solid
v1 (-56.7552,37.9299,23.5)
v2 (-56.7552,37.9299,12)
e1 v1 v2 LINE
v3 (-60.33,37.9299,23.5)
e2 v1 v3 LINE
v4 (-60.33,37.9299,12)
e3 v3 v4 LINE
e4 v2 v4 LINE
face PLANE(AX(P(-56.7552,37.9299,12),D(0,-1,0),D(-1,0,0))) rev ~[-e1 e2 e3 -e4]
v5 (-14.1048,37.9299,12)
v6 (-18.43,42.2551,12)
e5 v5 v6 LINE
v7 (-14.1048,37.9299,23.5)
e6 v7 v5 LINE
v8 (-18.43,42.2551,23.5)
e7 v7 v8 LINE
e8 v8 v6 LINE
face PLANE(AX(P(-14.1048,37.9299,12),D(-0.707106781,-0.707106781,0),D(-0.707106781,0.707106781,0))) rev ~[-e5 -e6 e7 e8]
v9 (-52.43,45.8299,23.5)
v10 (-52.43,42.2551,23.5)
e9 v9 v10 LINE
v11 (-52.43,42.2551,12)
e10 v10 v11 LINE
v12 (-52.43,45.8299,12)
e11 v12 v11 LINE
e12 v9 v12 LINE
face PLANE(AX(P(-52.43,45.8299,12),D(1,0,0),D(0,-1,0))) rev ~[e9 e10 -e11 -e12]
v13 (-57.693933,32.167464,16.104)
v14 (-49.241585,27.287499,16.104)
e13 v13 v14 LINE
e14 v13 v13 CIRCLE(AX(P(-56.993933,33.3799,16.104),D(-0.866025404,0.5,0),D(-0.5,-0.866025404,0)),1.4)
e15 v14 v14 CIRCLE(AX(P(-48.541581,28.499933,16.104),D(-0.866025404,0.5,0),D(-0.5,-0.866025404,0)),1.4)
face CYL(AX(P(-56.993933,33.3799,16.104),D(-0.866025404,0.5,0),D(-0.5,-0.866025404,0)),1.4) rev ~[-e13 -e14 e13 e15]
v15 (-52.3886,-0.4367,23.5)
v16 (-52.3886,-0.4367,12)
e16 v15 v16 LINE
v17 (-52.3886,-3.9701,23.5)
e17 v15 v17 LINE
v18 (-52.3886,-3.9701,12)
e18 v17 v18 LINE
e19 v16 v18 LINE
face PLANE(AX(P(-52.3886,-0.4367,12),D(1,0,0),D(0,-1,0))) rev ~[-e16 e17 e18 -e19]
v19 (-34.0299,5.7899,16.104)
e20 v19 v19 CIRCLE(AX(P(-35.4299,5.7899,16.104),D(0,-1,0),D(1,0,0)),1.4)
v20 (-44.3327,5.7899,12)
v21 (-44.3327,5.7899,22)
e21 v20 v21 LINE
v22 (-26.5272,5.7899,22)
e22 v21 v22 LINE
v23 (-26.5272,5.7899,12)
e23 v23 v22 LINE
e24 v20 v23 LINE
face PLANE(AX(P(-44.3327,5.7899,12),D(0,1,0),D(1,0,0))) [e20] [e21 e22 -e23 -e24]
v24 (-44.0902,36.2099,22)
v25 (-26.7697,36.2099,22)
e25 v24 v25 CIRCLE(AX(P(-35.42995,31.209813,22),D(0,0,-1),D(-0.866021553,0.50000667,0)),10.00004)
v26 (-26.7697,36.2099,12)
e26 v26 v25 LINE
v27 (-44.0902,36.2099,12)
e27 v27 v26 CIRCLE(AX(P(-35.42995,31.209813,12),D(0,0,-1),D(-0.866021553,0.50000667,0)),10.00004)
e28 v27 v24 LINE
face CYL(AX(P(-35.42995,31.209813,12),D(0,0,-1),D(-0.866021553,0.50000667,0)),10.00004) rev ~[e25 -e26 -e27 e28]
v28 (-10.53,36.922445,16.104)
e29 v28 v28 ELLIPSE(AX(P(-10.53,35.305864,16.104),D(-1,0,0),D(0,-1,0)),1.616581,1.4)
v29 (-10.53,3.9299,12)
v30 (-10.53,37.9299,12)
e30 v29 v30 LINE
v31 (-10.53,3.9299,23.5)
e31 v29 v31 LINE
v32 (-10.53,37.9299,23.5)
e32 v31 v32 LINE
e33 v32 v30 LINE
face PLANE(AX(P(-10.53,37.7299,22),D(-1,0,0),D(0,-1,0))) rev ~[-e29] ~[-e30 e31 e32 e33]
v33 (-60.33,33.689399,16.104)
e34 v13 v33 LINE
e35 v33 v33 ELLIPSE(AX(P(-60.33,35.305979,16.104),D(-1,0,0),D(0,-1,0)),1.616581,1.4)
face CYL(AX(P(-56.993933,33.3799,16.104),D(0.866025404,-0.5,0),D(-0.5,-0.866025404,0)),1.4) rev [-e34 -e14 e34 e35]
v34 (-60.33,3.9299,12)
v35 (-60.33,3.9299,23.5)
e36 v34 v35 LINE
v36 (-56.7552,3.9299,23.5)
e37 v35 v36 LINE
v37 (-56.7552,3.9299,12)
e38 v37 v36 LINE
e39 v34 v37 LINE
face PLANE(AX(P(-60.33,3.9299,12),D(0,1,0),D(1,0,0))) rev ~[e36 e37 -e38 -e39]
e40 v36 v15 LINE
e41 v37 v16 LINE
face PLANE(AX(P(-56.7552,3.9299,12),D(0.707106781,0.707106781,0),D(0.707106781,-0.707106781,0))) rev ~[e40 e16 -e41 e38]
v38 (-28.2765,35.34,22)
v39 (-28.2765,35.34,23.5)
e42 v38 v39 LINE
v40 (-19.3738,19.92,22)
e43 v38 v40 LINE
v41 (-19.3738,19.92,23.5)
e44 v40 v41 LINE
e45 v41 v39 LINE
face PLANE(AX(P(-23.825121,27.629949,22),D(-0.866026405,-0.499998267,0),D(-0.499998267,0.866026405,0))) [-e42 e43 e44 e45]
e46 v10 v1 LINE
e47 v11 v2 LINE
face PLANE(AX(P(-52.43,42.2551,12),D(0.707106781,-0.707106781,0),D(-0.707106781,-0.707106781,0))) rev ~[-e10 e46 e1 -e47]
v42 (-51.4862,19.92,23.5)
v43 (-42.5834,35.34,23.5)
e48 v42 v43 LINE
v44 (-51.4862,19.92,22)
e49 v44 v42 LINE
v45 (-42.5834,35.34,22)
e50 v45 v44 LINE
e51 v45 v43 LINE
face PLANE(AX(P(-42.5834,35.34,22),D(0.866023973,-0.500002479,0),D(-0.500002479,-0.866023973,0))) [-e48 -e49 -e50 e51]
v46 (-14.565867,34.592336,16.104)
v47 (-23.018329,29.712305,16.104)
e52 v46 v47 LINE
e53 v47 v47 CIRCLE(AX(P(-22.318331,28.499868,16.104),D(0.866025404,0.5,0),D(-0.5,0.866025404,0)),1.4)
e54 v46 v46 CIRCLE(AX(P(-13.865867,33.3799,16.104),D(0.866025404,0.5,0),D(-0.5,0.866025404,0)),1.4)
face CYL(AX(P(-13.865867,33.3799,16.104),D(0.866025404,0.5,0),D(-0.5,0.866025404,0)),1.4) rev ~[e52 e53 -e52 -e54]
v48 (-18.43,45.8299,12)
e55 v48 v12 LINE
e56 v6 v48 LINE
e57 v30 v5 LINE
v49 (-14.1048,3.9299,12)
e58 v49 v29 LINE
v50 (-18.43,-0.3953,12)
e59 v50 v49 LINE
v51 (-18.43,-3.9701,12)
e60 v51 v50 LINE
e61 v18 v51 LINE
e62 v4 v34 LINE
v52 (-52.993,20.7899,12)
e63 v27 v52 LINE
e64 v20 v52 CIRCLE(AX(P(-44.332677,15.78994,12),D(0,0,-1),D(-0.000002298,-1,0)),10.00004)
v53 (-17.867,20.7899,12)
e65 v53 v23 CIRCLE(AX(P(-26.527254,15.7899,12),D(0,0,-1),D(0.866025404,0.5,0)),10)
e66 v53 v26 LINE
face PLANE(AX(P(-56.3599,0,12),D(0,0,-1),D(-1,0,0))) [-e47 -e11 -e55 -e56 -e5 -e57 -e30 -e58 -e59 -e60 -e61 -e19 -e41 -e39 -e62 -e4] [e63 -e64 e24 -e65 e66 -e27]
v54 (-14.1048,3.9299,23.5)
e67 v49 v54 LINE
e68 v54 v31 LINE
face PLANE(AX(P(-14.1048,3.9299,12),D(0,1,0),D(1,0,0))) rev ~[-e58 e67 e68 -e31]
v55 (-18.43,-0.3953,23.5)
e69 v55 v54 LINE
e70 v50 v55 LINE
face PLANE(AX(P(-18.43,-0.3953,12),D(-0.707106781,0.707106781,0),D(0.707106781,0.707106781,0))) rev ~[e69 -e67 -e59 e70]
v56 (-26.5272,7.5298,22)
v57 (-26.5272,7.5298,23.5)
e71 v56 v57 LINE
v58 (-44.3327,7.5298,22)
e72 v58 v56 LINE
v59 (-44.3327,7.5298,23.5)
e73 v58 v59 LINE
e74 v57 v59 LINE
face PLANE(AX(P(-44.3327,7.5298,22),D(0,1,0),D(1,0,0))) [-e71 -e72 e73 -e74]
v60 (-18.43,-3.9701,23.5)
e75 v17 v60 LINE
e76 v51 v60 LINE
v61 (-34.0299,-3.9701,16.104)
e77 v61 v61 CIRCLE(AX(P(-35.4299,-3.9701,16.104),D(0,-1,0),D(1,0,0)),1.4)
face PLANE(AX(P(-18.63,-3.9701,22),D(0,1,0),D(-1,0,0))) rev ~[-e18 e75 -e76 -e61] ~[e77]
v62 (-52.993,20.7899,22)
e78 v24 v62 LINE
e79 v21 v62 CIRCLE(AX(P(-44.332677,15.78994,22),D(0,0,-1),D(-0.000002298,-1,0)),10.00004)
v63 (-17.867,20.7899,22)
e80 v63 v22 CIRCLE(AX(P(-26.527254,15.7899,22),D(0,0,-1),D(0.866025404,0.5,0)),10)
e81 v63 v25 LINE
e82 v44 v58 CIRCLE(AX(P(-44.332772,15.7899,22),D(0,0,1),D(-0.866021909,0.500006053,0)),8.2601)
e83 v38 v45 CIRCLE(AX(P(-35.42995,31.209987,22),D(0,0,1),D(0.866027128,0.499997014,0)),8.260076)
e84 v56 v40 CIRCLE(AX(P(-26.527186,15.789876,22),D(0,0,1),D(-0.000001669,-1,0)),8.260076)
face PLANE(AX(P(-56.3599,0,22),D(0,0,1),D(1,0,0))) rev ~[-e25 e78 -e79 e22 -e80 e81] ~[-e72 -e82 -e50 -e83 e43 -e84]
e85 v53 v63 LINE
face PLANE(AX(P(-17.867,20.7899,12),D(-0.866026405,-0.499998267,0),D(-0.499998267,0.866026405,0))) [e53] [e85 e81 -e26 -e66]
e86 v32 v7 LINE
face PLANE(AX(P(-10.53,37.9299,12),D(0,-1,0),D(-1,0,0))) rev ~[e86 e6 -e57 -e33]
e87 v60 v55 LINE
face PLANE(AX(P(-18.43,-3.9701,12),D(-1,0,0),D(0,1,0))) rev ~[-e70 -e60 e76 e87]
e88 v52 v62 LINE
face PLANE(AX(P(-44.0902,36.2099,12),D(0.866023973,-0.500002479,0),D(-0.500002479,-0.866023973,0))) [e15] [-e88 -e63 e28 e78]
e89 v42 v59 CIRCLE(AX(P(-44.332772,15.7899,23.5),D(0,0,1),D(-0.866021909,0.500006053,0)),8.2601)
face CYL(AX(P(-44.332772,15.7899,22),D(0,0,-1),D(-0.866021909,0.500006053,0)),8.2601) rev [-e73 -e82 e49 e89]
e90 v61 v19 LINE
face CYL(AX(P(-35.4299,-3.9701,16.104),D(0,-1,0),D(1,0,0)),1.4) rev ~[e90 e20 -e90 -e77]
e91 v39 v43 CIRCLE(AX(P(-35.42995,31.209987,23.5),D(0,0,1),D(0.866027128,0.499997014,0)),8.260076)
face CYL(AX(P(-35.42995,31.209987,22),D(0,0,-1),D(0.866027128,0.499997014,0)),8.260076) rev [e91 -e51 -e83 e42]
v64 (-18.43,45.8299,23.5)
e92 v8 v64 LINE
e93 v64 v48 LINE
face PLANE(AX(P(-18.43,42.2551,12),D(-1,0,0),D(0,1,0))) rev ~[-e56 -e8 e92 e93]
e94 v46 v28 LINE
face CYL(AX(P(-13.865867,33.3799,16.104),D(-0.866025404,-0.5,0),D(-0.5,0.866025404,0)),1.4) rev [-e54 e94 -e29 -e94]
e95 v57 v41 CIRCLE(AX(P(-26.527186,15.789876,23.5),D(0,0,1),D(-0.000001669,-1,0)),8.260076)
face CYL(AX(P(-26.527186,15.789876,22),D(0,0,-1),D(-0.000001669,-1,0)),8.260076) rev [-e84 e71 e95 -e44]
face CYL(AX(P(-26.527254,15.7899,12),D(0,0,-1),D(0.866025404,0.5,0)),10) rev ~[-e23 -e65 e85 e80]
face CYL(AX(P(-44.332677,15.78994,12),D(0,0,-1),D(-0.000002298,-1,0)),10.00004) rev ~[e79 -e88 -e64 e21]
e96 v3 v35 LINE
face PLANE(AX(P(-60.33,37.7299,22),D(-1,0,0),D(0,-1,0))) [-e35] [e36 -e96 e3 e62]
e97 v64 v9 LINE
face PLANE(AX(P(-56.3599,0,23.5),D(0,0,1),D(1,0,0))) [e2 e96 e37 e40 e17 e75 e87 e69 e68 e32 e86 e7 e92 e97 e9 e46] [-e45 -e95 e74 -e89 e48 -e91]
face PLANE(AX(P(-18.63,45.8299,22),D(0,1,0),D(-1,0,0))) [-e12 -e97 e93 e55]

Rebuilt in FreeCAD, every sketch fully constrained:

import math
import FreeCAD as App
import Part
import Sketcher
Q = App.Units.Quantity


def add_polygon(sketch, points):
    """Adds a closed chain of lines whose ends are joined by coincident constraints."""
    first, n = sketch.GeometryCount, len(points)
    for a, b in zip(points, points[1:] + points[:1]):
        sketch.addGeometry(Part.LineSegment(App.Vector(*a, 0), App.Vector(*b, 0)), False)
    for i in range(n):
        sketch.addConstraint(Sketcher.Constraint("Coincident", first + i, 2, first + (i + 1) % n, 1))

doc = App.newDocument("Part")
body = doc.addObject("PartDesign::Body", "Body")

# Sketch on XY plane
sketch1 = body.newObject("Sketcher::SketchObject", "Sketch")
sketch1.AttachmentSupport = (doc.getObject("XY_Plane"), [""])
sketch1.MapMode = "FlatFace"
sketch1.AttachmentOffset = App.Placement(App.Vector(0, 0, 22), App.Rotation())
add_polygon(sketch1, [(-52.189, -0.354), (-56.672, 4.13), (-60.33, 4.13), (-60.33, 37.73), (-56.672, 37.73), (-52.23, 42.172), (-52.23, 45.83), (-18.63, 45.83), (-18.63, 42.172), (-14.188, 37.73), (-10.53, 37.73), (-10.53, 4.13), (-14.188, 4.13), (-18.671, -0.354), (-18.63, -0.354), (-18.63, -3.97), (-52.189, -3.97)])  # lines 0-16
sketch1.addConstraint([
    Sketcher.Constraint("Horizontal", 1),
    Sketcher.Constraint("Vertical", 2),
    Sketcher.Constraint("Horizontal", 3),
    Sketcher.Constraint("Vertical", 5),
    Sketcher.Constraint("Horizontal", 6),
    Sketcher.Constraint("Vertical", 7),
    Sketcher.Constraint("Horizontal", 9),
    Sketcher.Constraint("Vertical", 10),
    Sketcher.Constraint("Horizontal", 11),
    Sketcher.Constraint("Horizontal", 13),
    Sketcher.Constraint("Vertical", 14),
    Sketcher.Constraint("Horizontal", 15),
    Sketcher.Constraint("Vertical", 16),
    Sketcher.Constraint("Perpendicular", 0, 4),
    Sketcher.Constraint("Perpendicular", 4, 8),
    Sketcher.Constraint("Perpendicular", 8, 12),
    Sketcher.Constraint("Horizontal", 4, 2, 7, 2),
    Sketcher.Constraint("Horizontal", 3, 2, 8, 2),
    Sketcher.Constraint("Horizontal", 1, 2, 10, 2),
    Sketcher.Constraint("Horizontal", 13, 2, 16, 2),
    Sketcher.Constraint("Vertical", 0, 2, 3, 2),
    Sketcher.Constraint("Vertical", 8, 2, 11, 2),
    Sketcher.Constraint("Vertical", 7, 2, 13, 2),
    Sketcher.Constraint("Equal", 3, 9),
    Sketcher.Constraint("Equal", 6, 2),
    Sketcher.Constraint("Equal", 11, 5),
    Sketcher.Constraint("Equal", 4, 8),
    Sketcher.Constraint("DistanceX", 6, 1, 6, 2, Q("33.6 mm")),
    Sketcher.Constraint("DistanceX", 2, 2, 4, 2, Q("8.1 mm")),
    Sketcher.Constraint("DistanceY", 14, 2, 11, 2, Q("8.1 mm")),
    Sketcher.Constraint("DistanceY", -1, 1, 0, 2, Q("4.13 mm")),
    Sketcher.Constraint("DistanceX", 1, 2, -1, 1, Q("60.33 mm")),
    Sketcher.Constraint("Distance", 0, Q("6.341 mm")),
    Sketcher.Constraint("DistanceX", 1, 2, 1, 1, Q("3.6577 mm")),
])
pad1 = body.newObject("PartDesign::Pad", "Pad")
pad1.Profile = sketch1
pad1.Length = 10
pad1.Reversed = True

# Sketch on XY plane
sketch2 = body.newObject("Sketcher::SketchObject", "Sketch001")
sketch2.AttachmentSupport = (doc.getObject("XY_Plane"), [""])
sketch2.MapMode = "FlatFace"
sketch2.AttachmentOffset = App.Placement(App.Vector(0, 0, 12), App.Rotation())
add_polygon(sketch2, [(-60.33, 3.93), (-60.33, 4.13), (-56.672, 4.13), (-52.189, -0.354), (-52.189, -3.97), (-52.389, -3.97), (-52.389, -0.437), (-56.755, 3.93)])  # lines 0-7
add_polygon(sketch2, [(-52.43, 45.83), (-52.23, 45.83), (-52.23, 42.172), (-56.672, 37.73), (-60.33, 37.73), (-60.33, 37.93), (-56.755, 37.93), (-52.43, 42.255)])  # lines 8-15
add_polygon(sketch2, [(-14.188, 37.73), (-18.63, 42.172), (-18.63, 45.83), (-18.43, 45.83), (-18.43, 42.255), (-14.105, 37.93), (-10.53, 37.93), (-10.53, 37.73)])  # lines 16-23
add_polygon(sketch2, [(-14.188, 4.13), (-10.53, 4.13), (-10.53, 3.93), (-14.105, 3.93), (-18.43, -0.395), (-18.43, -3.97), (-18.63, -3.97), (-18.63, -0.354), (-18.671, -0.354)])  # lines 24-32
sketch2.addConstraint([
    Sketcher.Constraint("Vertical", 0),
    Sketcher.Constraint("Horizontal", 1),
    Sketcher.Constraint("Vertical", 3),
    Sketcher.Constraint("Horizontal", 4),
    Sketcher.Constraint("Vertical", 5),
    Sketcher.Constraint("Horizontal", 7),
    Sketcher.Constraint("Horizontal", 8),
    Sketcher.Constraint("Vertical", 9),
    Sketcher.Constraint("Horizontal", 11),
    Sketcher.Constraint("Vertical", 12),
    Sketcher.Constraint("Horizontal", 13),
    Sketcher.Constraint("Vertical", 15),
    Sketcher.Constraint("Vertical", 17),
    Sketcher.Constraint("Horizontal", 18),
    Sketcher.Constraint("Vertical", 19),
    Sketcher.Constraint("Horizontal", 21),
    Sketcher.Constraint("Vertical", 22),
    Sketcher.Constraint("Horizontal", 23),
    Sketcher.Constraint("Horizontal", 24),
    Sketcher.Constraint("Vertical", 25),
    Sketcher.Constraint("Horizontal", 26),
    Sketcher.Constraint("Vertical", 28),
    Sketcher.Constraint("Horizontal", 29),
    Sketcher.Constraint("Vertical", 30),
    Sketcher.Constraint("Horizontal", 31),
    Sketcher.Constraint("Parallel", 2, 6),
    Sketcher.Constraint("Perpendicular", 6, 10),
    Sketcher.Constraint("Parallel", 10, 14),
    Sketcher.Constraint("Perpendicular", 14, 16),
    Sketcher.Constraint("Parallel", 16, 20),
    Sketcher.Constraint("Perpendicular", 20, 27),
    Sketcher.Constraint("Parallel", 27, 32),
    Sketcher.Constraint("Horizontal", 9, 2, 16, 2),
    Sketcher.Constraint("Horizontal", 15, 2, 17, 2),
    Sketcher.Constraint("Horizontal", 14, 2, 19, 2),
    Sketcher.Constraint("Horizontal", 13, 2, 20, 2),
    Sketcher.Constraint("Horizontal", 11, 2, 22, 2),
    Sketcher.Constraint("Horizontal", 1, 2, 24, 2),
    Sketcher.Constraint("Horizontal", 7, 2, 25, 2),
    Sketcher.Constraint("Horizontal", 4, 2, 28, 2),
    Sketcher.Constraint("Horizontal", 2, 2, 30, 2),
    Sketcher.Constraint("Vertical", 1, 2, 10, 2),
    Sketcher.Constraint("Vertical", 7, 2, 11, 2),
    Sketcher.Constraint("Vertical", 6, 2, 13, 2),
    Sketcher.Constraint("Vertical", 22, 2, 24, 2),
    Sketcher.Constraint("Vertical", 20, 2, 26, 2),
    Sketcher.Constraint("Vertical", 19, 2, 27, 2),
    Sketcher.Constraint("Vertical", 17, 2, 29, 2),
    Sketcher.Constraint("Vertical", 23, 2, 32, 2),
    Sketcher.Constraint("Equal", 4, 8),
    Sketcher.Constraint("Equal", 8, 18),
    Sketcher.Constraint("Equal", 13, 21),
    Sketcher.Constraint("Equal", 11, 23),
    Sketcher.Constraint("Equal", 29, 0),
    Sketcher.Constraint("Equal", 24, 9),
    Sketcher.Constraint("Equal", 0, 12),
    Sketcher.Constraint("Equal", 19, 28),
    Sketcher.Constraint("DistanceX", 4, 2, 4, 1, Q("0.2 mm")),
    Sketcher.Constraint("DistanceX", 15, 2, 18, 2, Q("34 mm")),
    Sketcher.Constraint("DistanceY", 25, 2, 21, 2, Q("34 mm")),
    Sketcher.Constraint("DistanceY", 3, 2, 1, 2, Q("8.1 mm")),
    Sketcher.Constraint("DistanceX", 0, 2, -1, 1, Q("60.33 mm")),
    Sketcher.Constraint("DistanceY", -1, 1, 0, 2, Q("4.13 mm")),
    Sketcher.Constraint("Distance", 2, Q("6.341 mm")),
    Sketcher.Constraint("DistanceX", 1, 1, 1, 2, Q("3.6577 mm")),
    Sketcher.Constraint("DistanceX", 7, 2, 7, 1, Q("3.5748 mm")),
])
pad2 = body.newObject("PartDesign::Pad", "Pad001")
pad2.Profile = sketch2
pad2.Length = 10

# Sketch on XY plane
sketch3 = body.newObject("Sketcher::SketchObject", "Sketch002")
sketch3.AttachmentSupport = (doc.getObject("XY_Plane"), [""])
sketch3.MapMode = "FlatFace"
sketch3.AttachmentOffset = App.Placement(App.Vector(0, 0, 12), App.Rotation())
sketch3.addGeometry([
    Part.LineSegment(App.Vector(-27, 6, 0), App.Vector(-44, 6, 0)),  # 0
    Part.ArcOfCircle(Part.Circle(App.Vector(-44, 16, 0), App.Vector(0, 0, 1), 10), math.radians(150), math.radians(270)),  # 1
    Part.LineSegment(App.Vector(-53, 21, 0), App.Vector(-44, 36, 0)),  # 2
    Part.ArcOfCircle(Part.Circle(App.Vector(-35, 31, 0), App.Vector(0, 0, 1), 10), math.radians(30), math.radians(150)),  # 3
    Part.LineSegment(App.Vector(-27, 36, 0), App.Vector(-18, 21, 0)),  # 4
    Part.ArcOfCircle(Part.Circle(App.Vector(-27, 16, 0), App.Vector(0, 0, 1), 10), math.radians(-90), math.radians(30)),  # 5
], False)
sketch3.addConstraint([
    Sketcher.Constraint("Tangent", 0, 2, 1, 2),
    Sketcher.Constraint("Tangent", 1, 1, 2, 1),
    Sketcher.Constraint("Tangent", 2, 2, 3, 2),
    Sketcher.Constraint("Tangent", 3, 1, 4, 1),
    Sketcher.Constraint("Tangent", 4, 2, 5, 2),
    Sketcher.Constraint("Tangent", 5, 1, 0, 1),
    Sketcher.Constraint("Horizontal", 0),
    Sketcher.Constraint("Equal", 1, 3),
    Sketcher.Constraint("Equal", 3, 5),
    Sketcher.Constraint("Horizontal", 2, 2, 3, 1),
    Sketcher.Constraint("Radius", 1, Q("10 mm")),
    Sketcher.Constraint("Angle", 2, Q("59.9998 deg")),
    Sketcher.Constraint("DistanceY", -1, 1, 1, 3, Q("15.79 mm")),
    Sketcher.Constraint("DistanceX", 3, 3, -1, 1, Q("35.43 mm")),
    Sketcher.Constraint("DistanceY", -1, 1, 3, 3, Q("31.21 mm")),
])
pocket1 = body.newObject("PartDesign::Pocket", "Pocket")
pocket1.Profile = sketch3
pocket1.Length = 10
pocket1.Reversed = True

# Sketch on XY plane
sketch4 = body.newObject("Sketcher::SketchObject", "Sketch003")
sketch4.AttachmentSupport = (doc.getObject("XY_Plane"), [""])
sketch4.MapMode = "FlatFace"
sketch4.AttachmentOffset = App.Placement(App.Vector(0, 0, 22), App.Rotation())
add_polygon(sketch4, [(-52.4, -0.4), (-52.4, -4), (-18.4, -4), (-18.4, -0.4), (-14.1, 3.9), (-10.5, 3.9), (-10.5, 37.9), (-14.1, 37.9), (-18.4, 42.3), (-18.4, 45.8), (-52.4, 45.8), (-52.4, 42.3), (-56.8, 37.9), (-60.3, 37.9), (-60.3, 3.9), (-56.8, 3.9)])  # lines 0-15
sketch4.addGeometry(Part.LineSegment(App.Vector(-28.3, 35.3, 0), App.Vector(-19.4, 19.9, 0)), False)  # 16
sketch4.addGeometry(Part.ArcOfCircle(Part.Circle(App.Vector(-26.5, 15.8, 0), App.Vector(0, 0, 1), 8.3), math.radians(-90), math.radians(30)), False)  # 17
sketch4.addGeometry(Part.LineSegment(App.Vector(-26.5, 7.5, 0), App.Vector(-44.3, 7.5, 0)), False)  # 18
sketch4.addGeometry(Part.ArcOfCircle(Part.Circle(App.Vector(-44.3, 15.8, 0), App.Vector(0, 0, 1), 8.3), math.radians(150), math.radians(270)), False)  # 19
sketch4.addGeometry(Part.LineSegment(App.Vector(-51.5, 19.9, 0), App.Vector(-42.6, 35.3, 0)), False)  # 20
sketch4.addGeometry(Part.ArcOfCircle(Part.Circle(App.Vector(-35.4, 31.2, 0), App.Vector(0, 0, 1), 8.3), math.radians(30), math.radians(150)), False)  # 21
sketch4.addConstraint([
    Sketcher.Constraint("Tangent", 16, 2, 17, 2),
    Sketcher.Constraint("Tangent", 17, 1, 18, 1),
    Sketcher.Constraint("Tangent", 18, 2, 19, 2),
    Sketcher.Constraint("Tangent", 19, 1, 20, 1),
    Sketcher.Constraint("Tangent", 20, 2, 21, 2),
    Sketcher.Constraint("Tangent", 21, 1, 16, 1),
    Sketcher.Constraint("Vertical", 0),
    Sketcher.Constraint("Horizontal", 1),
    Sketcher.Constraint("Vertical", 2),
    Sketcher.Constraint("Horizontal", 4),
    Sketcher.Constraint("Vertical", 5),
    Sketcher.Constraint("Horizontal", 6),
    Sketcher.Constraint("Vertical", 8),
    Sketcher.Constraint("Horizontal", 9),
    Sketcher.Constraint("Vertical", 10),
    Sketcher.Constraint("Horizontal", 12),
    Sketcher.Constraint("Vertical", 13),
    Sketcher.Constraint("Horizontal", 14),
    Sketcher.Constraint("Horizontal", 18),
    Sketcher.Constraint("Equal", 17, 19),
    Sketcher.Constraint("Equal", 19, 21),
    Sketcher.Constraint("Perpendicular", 3, 7),
    Sketcher.Constraint("Perpendicular", 7, 11),
    Sketcher.Constraint("Perpendicular", 11, 15),
    Sketcher.Constraint("Horizontal", 7, 2, 10, 2),
    Sketcher.Constraint("Horizontal", 6, 2, 11, 2),
    Sketcher.Constraint("Horizontal", 4, 2, 13, 2),
    Sketcher.Constraint("Horizontal", 16, 2, 19, 1),
    Sketcher.Constraint("Vertical", 3, 2, 6, 2),
    Sketcher.Constraint("Vertical", 2, 2, 7, 2),
    Sketcher.Constraint("Vertical", 11, 2, 14, 2),
    Sketcher.Constraint("Equal", 6, 12),
    Sketcher.Constraint("Equal", 14, 2),
    Sketcher.Constraint("Equal", 9, 5),
    Sketcher.Constraint("Equal", 2, 8),
    Sketcher.Constraint("Equal", 3, 7),
    Sketcher.Constraint("DistanceX", 9, 2, 9, 1, Q("34 mm")),
    Sketcher.Constraint("Angle", 16, Q("-60 deg")),
    Sketcher.Constraint("Radius", 17, Q("8.26 mm")),
    Sketcher.Constraint("DistanceX", 21, 3, 1, 2, Q("17 mm")),
    Sketcher.Constraint("DistanceY", 1, 2, 3, 2, Q("7.9 mm")),
    Sketcher.Constraint("DistanceY", 3, 2, 17, 1, Q("3.6 mm")),
    Sketcher.Constraint("DistanceY", -1, 1, 17, 3, Q("15.79 mm")),
    Sketcher.Constraint("DistanceX", 21, 3, -1, 1, Q("35.43 mm")),
    Sketcher.Constraint("DistanceY", -1, 1, 21, 3, Q("31.21 mm")),
    Sketcher.Constraint("DistanceX", 1, 1, 1, 2, Q("33.9586 mm")),
    Sketcher.Constraint("DistanceX", 4, 1, 4, 2, Q("3.5748 mm")),
])
pad3 = body.newObject("PartDesign::Pad", "Pad002")
pad3.Profile = sketch4
pad3.Length = 1.5

# Sketch on XZ plane
sketch5 = body.newObject("Sketcher::SketchObject", "Sketch004")
sketch5.AttachmentSupport = (doc.getObject("XZ_Plane"), [""])
sketch5.MapMode = "FlatFace"
sketch5.AttachmentOffset = App.Placement(App.Vector(0, 0, 3.9701), App.Rotation())
sketch5.addGeometry(Part.Circle(App.Vector(-35.4, 16.1, 0), App.Vector(0, 0, 1), 1.4), False)
sketch5.addConstraint([
    Sketcher.Constraint("Diameter", 0, Q("2.8 mm")),
    Sketcher.Constraint("DistanceX", 0, 3, -1, 1, Q("35.43 mm")),
    Sketcher.Constraint("DistanceY", -1, 1, 0, 3, Q("16.104 mm")),
])
pocket2 = body.newObject("PartDesign::Pocket", "Pocket001")
pocket2.Profile = sketch5
pocket2.Length = 30
pocket2.Midplane = True
doc.recompute()

datumline = body.newObject("PartDesign::Line", "DatumLine")
datumline.Placement = App.Placement(App.Vector(-35.4299, 20.9299, 0), App.Rotation(App.Vector(0, 0, 1), App.Vector(0, 0, 1)))
polarpattern = body.newObject("PartDesign::PolarPattern", "PolarPattern")
polarpattern.Originals = [pocket2]
polarpattern.Axis = (datumline, [""])
polarpattern.Angle = 360
polarpattern.Occurrences = 3
body.Tip = polarpattern

doc.recompute()
